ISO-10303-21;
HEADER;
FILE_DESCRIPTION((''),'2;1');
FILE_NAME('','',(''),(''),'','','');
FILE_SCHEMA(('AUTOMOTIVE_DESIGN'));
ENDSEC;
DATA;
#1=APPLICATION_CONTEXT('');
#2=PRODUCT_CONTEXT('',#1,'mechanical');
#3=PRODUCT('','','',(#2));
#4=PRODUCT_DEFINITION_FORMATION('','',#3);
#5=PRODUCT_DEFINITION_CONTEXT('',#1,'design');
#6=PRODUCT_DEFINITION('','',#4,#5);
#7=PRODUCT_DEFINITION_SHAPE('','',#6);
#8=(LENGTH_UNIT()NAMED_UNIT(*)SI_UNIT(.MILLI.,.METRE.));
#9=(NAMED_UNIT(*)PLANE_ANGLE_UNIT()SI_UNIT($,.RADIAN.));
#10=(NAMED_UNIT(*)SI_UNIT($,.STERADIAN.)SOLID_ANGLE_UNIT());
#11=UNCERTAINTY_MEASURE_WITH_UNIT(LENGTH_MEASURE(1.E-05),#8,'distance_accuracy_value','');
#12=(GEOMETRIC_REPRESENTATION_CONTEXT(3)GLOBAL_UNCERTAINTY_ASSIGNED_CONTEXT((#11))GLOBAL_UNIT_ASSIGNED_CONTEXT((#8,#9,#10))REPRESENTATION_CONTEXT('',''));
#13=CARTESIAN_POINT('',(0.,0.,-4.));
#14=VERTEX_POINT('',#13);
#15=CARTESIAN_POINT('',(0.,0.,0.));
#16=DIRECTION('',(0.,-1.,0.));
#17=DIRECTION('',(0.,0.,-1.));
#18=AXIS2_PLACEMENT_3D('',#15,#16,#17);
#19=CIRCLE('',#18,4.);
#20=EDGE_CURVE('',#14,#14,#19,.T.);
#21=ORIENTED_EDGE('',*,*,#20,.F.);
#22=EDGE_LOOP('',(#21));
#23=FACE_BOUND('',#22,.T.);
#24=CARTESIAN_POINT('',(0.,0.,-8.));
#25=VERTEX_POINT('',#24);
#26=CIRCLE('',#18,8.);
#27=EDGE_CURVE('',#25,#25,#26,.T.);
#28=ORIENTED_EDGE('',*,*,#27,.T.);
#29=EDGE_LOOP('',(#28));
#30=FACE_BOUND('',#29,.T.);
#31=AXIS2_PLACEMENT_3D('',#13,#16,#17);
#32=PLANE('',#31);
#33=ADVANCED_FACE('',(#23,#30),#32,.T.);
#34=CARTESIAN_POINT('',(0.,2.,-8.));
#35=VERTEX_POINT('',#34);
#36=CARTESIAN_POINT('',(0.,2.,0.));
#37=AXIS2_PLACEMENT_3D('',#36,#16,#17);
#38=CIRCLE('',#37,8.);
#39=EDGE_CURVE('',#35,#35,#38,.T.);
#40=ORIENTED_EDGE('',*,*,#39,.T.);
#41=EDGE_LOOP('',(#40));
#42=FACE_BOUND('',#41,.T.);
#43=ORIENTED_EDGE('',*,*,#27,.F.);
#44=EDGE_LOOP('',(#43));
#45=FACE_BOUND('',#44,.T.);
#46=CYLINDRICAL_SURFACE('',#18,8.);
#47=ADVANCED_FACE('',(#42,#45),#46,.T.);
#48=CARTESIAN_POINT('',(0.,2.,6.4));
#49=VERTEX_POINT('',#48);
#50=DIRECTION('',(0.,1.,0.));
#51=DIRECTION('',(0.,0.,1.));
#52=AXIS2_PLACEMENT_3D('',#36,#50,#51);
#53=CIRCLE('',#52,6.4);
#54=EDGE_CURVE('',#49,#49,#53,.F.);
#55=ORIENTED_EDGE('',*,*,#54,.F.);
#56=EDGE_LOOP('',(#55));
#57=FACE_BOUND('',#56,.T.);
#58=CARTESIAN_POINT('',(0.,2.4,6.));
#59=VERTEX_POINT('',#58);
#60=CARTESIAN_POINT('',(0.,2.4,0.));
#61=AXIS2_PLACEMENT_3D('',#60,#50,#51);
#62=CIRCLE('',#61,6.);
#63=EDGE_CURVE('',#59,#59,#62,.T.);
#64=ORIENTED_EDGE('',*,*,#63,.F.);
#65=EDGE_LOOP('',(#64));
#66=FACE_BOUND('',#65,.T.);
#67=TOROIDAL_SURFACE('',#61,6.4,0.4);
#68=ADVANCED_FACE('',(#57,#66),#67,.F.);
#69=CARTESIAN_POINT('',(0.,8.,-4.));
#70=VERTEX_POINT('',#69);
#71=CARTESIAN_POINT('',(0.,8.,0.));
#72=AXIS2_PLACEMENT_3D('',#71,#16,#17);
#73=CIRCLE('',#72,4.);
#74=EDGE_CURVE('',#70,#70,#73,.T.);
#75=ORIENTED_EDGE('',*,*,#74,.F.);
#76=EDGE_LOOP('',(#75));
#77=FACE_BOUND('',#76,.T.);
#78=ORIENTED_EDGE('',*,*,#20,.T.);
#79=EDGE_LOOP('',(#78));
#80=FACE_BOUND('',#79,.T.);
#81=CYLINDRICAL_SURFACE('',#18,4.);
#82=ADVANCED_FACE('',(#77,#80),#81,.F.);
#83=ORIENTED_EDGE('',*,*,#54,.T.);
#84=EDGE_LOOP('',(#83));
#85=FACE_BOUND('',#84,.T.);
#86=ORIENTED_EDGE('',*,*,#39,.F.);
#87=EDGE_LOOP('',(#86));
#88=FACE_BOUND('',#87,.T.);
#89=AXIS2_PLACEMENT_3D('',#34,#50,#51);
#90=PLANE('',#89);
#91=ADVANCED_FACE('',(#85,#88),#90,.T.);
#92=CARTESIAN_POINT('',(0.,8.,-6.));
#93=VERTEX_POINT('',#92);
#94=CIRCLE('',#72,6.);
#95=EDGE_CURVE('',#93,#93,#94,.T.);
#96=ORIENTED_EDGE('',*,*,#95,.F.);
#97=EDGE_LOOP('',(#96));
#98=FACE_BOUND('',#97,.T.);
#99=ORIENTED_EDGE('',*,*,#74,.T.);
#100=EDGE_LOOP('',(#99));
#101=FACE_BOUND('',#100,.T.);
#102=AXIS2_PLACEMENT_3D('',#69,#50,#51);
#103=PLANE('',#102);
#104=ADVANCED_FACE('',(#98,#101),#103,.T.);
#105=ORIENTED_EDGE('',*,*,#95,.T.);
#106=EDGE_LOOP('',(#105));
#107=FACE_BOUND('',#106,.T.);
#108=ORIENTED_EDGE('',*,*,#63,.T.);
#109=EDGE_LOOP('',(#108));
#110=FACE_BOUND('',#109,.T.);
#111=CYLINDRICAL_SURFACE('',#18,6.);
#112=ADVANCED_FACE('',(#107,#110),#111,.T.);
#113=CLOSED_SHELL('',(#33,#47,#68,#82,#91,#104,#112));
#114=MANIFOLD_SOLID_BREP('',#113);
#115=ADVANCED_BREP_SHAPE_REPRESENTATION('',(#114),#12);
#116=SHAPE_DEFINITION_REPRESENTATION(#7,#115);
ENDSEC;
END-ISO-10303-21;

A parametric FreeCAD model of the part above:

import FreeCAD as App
import Part
import Sketcher
from FreeCAD import Vector
Q = App.Units.Quantity


def edges_at(feature, points):
    """Names of the edges that pass closest to the given points."""
    edges = feature.Shape.Edges
    near = lambda p: min(range(len(edges)), key=lambda i: edges[i].distToShape(Part.Vertex(*p))[0])
    return sorted({f"Edge{near(p) + 1}" for p in points})

doc = App.newDocument("Part")
body = doc.addObject("PartDesign::Body", "Body")

sketch1 = body.newObject("Sketcher::SketchObject", "Sketch")
sketch1.AttachmentSupport = (doc.getObject("YZ_Plane"), [""])
sketch1.MapMode = "FlatFace"
sketch1.addGeometry(Part.LineSegment(Vector(8, -4, 0), Vector(0, -4, 0)), False)
sketch1.addGeometry(Part.LineSegment(Vector(0, -4, 0), Vector(0, -8, 0)), False)
sketch1.addGeometry(Part.LineSegment(Vector(0, -8, 0), Vector(2, -8, 0)), False)
sketch1.addGeometry(Part.LineSegment(Vector(2, -8, 0), Vector(2, -6, 0)), False)
sketch1.addGeometry(Part.LineSegment(Vector(2, -6, 0), Vector(8, -6, 0)), False)
sketch1.addGeometry(Part.LineSegment(Vector(8, -6, 0), Vector(8, -4, 0)), False)
sketch1.addConstraint(Sketcher.Constraint("Coincident", 0, 2, 1, 1))
sketch1.addConstraint(Sketcher.Constraint("Coincident", 1, 2, 2, 1))
sketch1.addConstraint(Sketcher.Constraint("Coincident", 2, 2, 3, 1))
sketch1.addConstraint(Sketcher.Constraint("Coincident", 3, 2, 4, 1))
sketch1.addConstraint(Sketcher.Constraint("Coincident", 4, 2, 5, 1))
sketch1.addConstraint(Sketcher.Constraint("Coincident", 5, 2, 0, 1))
sketch1.addConstraint(Sketcher.Constraint("Horizontal", 0))
sketch1.addConstraint(Sketcher.Constraint("Vertical", 1))
sketch1.addConstraint(Sketcher.Constraint("Horizontal", 2))
sketch1.addConstraint(Sketcher.Constraint("Vertical", 3))
sketch1.addConstraint(Sketcher.Constraint("Horizontal", 4))
sketch1.addConstraint(Sketcher.Constraint("Vertical", 5))
sketch1.addConstraint(Sketcher.Constraint("PointOnObject", 0, 2, -2))
sketch1.addConstraint(Sketcher.Constraint("Equal", 2, 3))
sketch1.addConstraint(Sketcher.Constraint("Equal", 3, 5))
sketch1.addConstraint(Sketcher.Constraint("DistanceX", 0, 2, 0, 1, Q("8 mm")))
sketch1.addConstraint(Sketcher.Constraint("DistanceX", 2, 1, 2, 2, Q("2 mm")))
sketch1.addConstraint(Sketcher.Constraint("DistanceY", 0, 2, -1, 1, Q("4 mm")))
revolution = body.newObject("PartDesign::Revolution", "Revolution")
revolution.Profile = sketch1
revolution.ReferenceAxis = (sketch1, ["H_Axis"])
revolution.Angle = 360
doc.recompute()

fillet = body.newObject("PartDesign::Fillet", "Fillet")
fillet.Base = (revolution, edges_at(revolution, [(0, 2, 6)]))
fillet.Radius = 0.4

doc.recompute()
